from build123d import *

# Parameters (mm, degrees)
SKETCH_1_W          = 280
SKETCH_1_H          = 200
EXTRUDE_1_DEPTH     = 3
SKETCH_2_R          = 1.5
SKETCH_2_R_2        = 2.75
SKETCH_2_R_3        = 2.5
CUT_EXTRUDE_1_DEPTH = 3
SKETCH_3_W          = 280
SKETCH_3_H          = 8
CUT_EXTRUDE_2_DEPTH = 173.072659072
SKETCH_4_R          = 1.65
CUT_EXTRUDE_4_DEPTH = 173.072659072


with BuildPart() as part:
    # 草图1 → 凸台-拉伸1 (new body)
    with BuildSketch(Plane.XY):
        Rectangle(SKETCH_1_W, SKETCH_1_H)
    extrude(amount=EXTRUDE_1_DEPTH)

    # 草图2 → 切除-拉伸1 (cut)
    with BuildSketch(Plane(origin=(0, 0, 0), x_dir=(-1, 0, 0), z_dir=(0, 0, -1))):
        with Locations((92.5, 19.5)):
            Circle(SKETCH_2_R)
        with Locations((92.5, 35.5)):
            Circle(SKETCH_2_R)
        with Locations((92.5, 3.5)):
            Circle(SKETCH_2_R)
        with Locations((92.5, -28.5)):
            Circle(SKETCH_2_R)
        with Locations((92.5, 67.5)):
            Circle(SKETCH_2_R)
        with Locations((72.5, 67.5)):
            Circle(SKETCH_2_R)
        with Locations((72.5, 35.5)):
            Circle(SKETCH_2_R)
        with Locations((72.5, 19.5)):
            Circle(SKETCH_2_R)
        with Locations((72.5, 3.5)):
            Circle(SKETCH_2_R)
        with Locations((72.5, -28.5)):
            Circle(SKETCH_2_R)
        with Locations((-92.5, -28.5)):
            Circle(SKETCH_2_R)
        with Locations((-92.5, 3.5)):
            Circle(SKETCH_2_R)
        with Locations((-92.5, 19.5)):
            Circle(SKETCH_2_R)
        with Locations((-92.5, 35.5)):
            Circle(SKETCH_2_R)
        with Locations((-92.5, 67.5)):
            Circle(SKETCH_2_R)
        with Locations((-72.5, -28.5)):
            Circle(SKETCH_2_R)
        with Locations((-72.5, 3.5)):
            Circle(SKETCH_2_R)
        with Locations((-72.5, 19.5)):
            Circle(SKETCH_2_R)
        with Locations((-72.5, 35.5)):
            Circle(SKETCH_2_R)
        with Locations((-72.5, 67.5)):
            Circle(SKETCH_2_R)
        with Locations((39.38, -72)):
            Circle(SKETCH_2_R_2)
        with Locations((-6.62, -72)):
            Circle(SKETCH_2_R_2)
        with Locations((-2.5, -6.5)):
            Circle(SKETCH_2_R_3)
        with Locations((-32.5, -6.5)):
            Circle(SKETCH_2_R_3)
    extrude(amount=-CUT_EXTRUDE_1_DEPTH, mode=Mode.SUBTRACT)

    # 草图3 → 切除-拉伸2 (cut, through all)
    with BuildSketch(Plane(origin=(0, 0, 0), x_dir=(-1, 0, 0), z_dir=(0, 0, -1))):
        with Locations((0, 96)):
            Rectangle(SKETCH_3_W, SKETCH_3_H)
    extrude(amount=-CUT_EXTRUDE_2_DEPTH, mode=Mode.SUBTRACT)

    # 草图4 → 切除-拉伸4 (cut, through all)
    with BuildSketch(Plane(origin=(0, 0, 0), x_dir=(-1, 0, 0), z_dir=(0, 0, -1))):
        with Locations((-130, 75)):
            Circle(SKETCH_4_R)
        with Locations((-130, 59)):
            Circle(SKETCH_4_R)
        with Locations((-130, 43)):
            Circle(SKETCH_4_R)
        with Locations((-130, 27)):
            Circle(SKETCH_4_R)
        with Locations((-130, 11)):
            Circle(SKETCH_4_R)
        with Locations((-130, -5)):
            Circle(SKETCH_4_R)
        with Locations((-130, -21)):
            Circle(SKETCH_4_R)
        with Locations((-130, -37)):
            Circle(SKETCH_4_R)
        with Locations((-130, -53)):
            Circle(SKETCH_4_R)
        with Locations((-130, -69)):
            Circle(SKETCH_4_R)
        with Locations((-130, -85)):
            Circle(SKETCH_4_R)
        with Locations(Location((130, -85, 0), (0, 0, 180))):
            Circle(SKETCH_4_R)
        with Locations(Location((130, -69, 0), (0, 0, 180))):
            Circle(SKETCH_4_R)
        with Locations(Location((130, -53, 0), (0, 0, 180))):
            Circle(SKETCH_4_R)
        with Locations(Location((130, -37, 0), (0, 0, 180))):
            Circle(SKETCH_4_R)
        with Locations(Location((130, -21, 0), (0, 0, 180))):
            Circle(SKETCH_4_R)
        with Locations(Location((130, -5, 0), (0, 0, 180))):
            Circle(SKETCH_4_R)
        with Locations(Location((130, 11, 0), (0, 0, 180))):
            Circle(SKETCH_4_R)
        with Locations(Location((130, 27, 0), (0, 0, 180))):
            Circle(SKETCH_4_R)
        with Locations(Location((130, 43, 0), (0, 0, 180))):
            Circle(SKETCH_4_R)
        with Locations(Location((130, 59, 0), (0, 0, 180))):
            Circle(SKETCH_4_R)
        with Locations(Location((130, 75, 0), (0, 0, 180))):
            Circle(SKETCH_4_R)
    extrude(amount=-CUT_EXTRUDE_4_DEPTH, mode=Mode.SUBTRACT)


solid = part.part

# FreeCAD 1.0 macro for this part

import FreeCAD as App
import Part
import Sketcher
from FreeCAD import Vector


def add_polygon(sketch, points):
    """Adds a closed chain of lines whose ends are joined by coincident constraints."""
    first, n = sketch.GeometryCount, len(points)
    for a, b in zip(points, points[1:] + points[:1]):
        sketch.addGeometry(Part.LineSegment(App.Vector(*a, 0), App.Vector(*b, 0)), False)
    for i in range(n):
        sketch.addConstraint(Sketcher.Constraint("Coincident", first + i, 2, first + (i + 1) % n, 1))

doc = App.newDocument("Part")
body = doc.addObject("PartDesign::Body", "Body")

sketch1 = body.newObject("Sketcher::SketchObject", "Sketch")
sketch1.AttachmentSupport = (doc.getObject("XY_Plane"), [""])
sketch1.MapMode = "FlatFace"
add_polygon(sketch1, [(-140, 100), (-140, -100), (140, -100), (140, 100)])
sketch1.addConstraint([
    Sketcher.Constraint("Vertical", 0),
    Sketcher.Constraint("Horizontal", 1),
    Sketcher.Constraint("Vertical", 2),
    Sketcher.Constraint("Horizontal", 3),
    Sketcher.Constraint("Symmetric", 0, 2, 2, 2, -1, 1),
    Sketcher.Constraint("DistanceX", 1, 1, 1, 2, 280.0),
    Sketcher.Constraint("DistanceY", 0, 2, 0, 1, 200.0),
])
pad1 = body.newObject("PartDesign::Pad", "Pad")
pad1.Profile = sketch1
pad1.Length = 3

sketch2 = body.newObject("Sketcher::SketchObject", "Sketch001")
sketch2.AttachmentSupport = (doc.getObject("XY_Plane"), [""])
sketch2.MapMode = "FlatFace"
sketch2.addGeometry([
    Part.Circle(Vector(-92.5, 19.5, 0), Vector(0, 0, 1), 1.5),
    Part.Circle(Vector(-92.5, 35.5, 0), Vector(0, 0, 1), 1.5),
    Part.Circle(Vector(-92.5, 3.5, 0), Vector(0, 0, 1), 1.5),
    Part.Circle(Vector(-92.5, -28.5, 0), Vector(0, 0, 1), 1.5),
    Part.Circle(Vector(-92.5, 67.5, 0), Vector(0, 0, 1), 1.5),
    Part.Circle(Vector(-72.5, 67.5, 0), Vector(0, 0, 1), 1.5),
    Part.Circle(Vector(-72.5, 35.5, 0), Vector(0, 0, 1), 1.5),
    Part.Circle(Vector(-72.5, 19.5, 0), Vector(0, 0, 1), 1.5),
    Part.Circle(Vector(-72.5, 3.5, 0), Vector(0, 0, 1), 1.5),
    Part.Circle(Vector(-72.5, -28.5, 0), Vector(0, 0, 1), 1.5),
    Part.Circle(Vector(92.5, -28.5, 0), Vector(0, 0, 1), 1.5),
    Part.Circle(Vector(92.5, 3.5, 0), Vector(0, 0, 1), 1.5),
    Part.Circle(Vector(92.5, 19.5, 0), Vector(0, 0, 1), 1.5),
    Part.Circle(Vector(92.5, 35.5, 0), Vector(0, 0, 1), 1.5),
    Part.Circle(Vector(92.5, 67.5, 0), Vector(0, 0, 1), 1.5),
    Part.Circle(Vector(72.5, -28.5, 0), Vector(0, 0, 1), 1.5),
    Part.Circle(Vector(72.5, 3.5, 0), Vector(0, 0, 1), 1.5),
    Part.Circle(Vector(72.5, 19.5, 0), Vector(0, 0, 1), 1.5),
    Part.Circle(Vector(72.5, 35.5, 0), Vector(0, 0, 1), 1.5),
    Part.Circle(Vector(72.5, 67.5, 0), Vector(0, 0, 1), 1.5),
    Part.Circle(Vector(-39.4, -72, 0), Vector(0, 0, 1), 2.8),
    Part.Circle(Vector(6.6, -72, 0), Vector(0, 0, 1), 2.8),
    Part.Circle(Vector(2.5, -6.5, 0), Vector(0, 0, 1), 2.5),
    Part.Circle(Vector(32.5, -6.5, 0), Vector(0, 0, 1), 2.5),
], False)
sketch2.addConstraint([
    Sketcher.Constraint("Equal", 0, 1),
    Sketcher.Constraint("Equal", 1, 2),
    Sketcher.Constraint("Equal", 2, 3),
    Sketcher.Constraint("Equal", 3, 4),
    Sketcher.Constraint("Equal", 4, 5),
    Sketcher.Constraint("Equal", 5, 6),
    Sketcher.Constraint("Equal", 6, 7),
    Sketcher.Constraint("Equal", 7, 8),
    Sketcher.Constraint("Equal", 8, 9),
    Sketcher.Constraint("Equal", 9, 10),
    Sketcher.Constraint("Equal", 10, 11),
    Sketcher.Constraint("Equal", 11, 12),
    Sketcher.Constraint("Equal", 12, 13),
    Sketcher.Constraint("Equal", 13, 14),
    Sketcher.Constraint("Equal", 14, 15),
    Sketcher.Constraint("Equal", 15, 16),
    Sketcher.Constraint("Equal", 16, 17),
    Sketcher.Constraint("Equal", 17, 18),
    Sketcher.Constraint("Equal", 18, 19),
    Sketcher.Constraint("Equal", 20, 21),
    Sketcher.Constraint("Equal", 22, 23),
    Sketcher.Constraint("Symmetric", 3, 3, 10, 3, -2),
    Sketcher.Constraint("Symmetric", 2, 3, 11, 3, -2),
    Sketcher.Constraint("Symmetric", 0, 3, 12, 3, -2),
    Sketcher.Constraint("Symmetric", 1, 3, 13, 3, -2),
    Sketcher.Constraint("Symmetric", 4, 3, 14, 3, -2),
    Sketcher.Constraint("Symmetric", 9, 3, 15, 3, -2),
    Sketcher.Constraint("Symmetric", 8, 3, 16, 3, -2),
    Sketcher.Constraint("Symmetric", 7, 3, 17, 3, -2),
    Sketcher.Constraint("Symmetric", 6, 3, 18, 3, -2),
    Sketcher.Constraint("Symmetric", 5, 3, 19, 3, -2),
    Sketcher.Constraint("Horizontal", 4, 3, 5, 3),
    Sketcher.Constraint("Horizontal", 1, 3, 6, 3),
    Sketcher.Constraint("Horizontal", 0, 3, 7, 3),
    Sketcher.Constraint("Horizontal", 2, 3, 8, 3),
    Sketcher.Constraint("Horizontal", 3, 3, 9, 3),
    Sketcher.Constraint("Horizontal", 20, 3, 21, 3),
    Sketcher.Constraint("Horizontal", 22, 3, 23, 3),
    Sketcher.Constraint("Vertical", 0, 3, 1, 3),
    Sketcher.Constraint("Vertical", 1, 3, 2, 3),
    Sketcher.Constraint("Vertical", 2, 3, 3, 3),
    Sketcher.Constraint("Vertical", 3, 3, 4, 3),
    Sketcher.Constraint("Vertical", 5, 3, 6, 3),
    Sketcher.Constraint("Vertical", 6, 3, 7, 3),
    Sketcher.Constraint("Vertical", 7, 3, 8, 3),
    Sketcher.Constraint("Vertical", 8, 3, 9, 3),
    Sketcher.Constraint("Diameter", 0, 3.0),
    Sketcher.Constraint("Diameter", 22, 5.0),
    Sketcher.Constraint("Diameter", 20, 5.5),
    Sketcher.Constraint("DistanceY", 20, 3, -1, 1, 72.0),
    Sketcher.Constraint("DistanceY", 0, 3, 1, 3, 16.0),
    Sketcher.Constraint("DistanceY", 2, 3, 0, 3, 16.0),
    Sketcher.Constraint("DistanceY", 3, 3, 2, 3, 32.0),
    Sketcher.Constraint("DistanceY", 1, 3, 4, 3, 32.0),
    Sketcher.Constraint("DistanceX", 4, 3, 5, 3, 20.0),
    Sketcher.Constraint("DistanceX", 9, 3, 10, 3, 165.0),
    Sketcher.Constraint("DistanceX", 20, 3, 21, 3, 46.0),
    Sketcher.Constraint("DistanceX", 22, 3, 16, 3, 70.0),
    Sketcher.Constraint("DistanceY", 22, 3, 16, 3, 10.0),
    Sketcher.Constraint("DistanceX", 22, 3, 23, 3, 30.0),
    Sketcher.Constraint("DistanceY", -1, 1, 0, 3, 19.5),
    Sketcher.Constraint("DistanceX", 20, 3, -1, 1, 39.38),
])
pocket1 = body.newObject("PartDesign::Pocket", "Pocket")
pocket1.Profile = sketch2
pocket1.Length = 3
pocket1.Reversed = True

sketch3 = body.newObject("Sketcher::SketchObject", "Sketch002")
sketch3.AttachmentSupport = (doc.getObject("XY_Plane"), [""])
sketch3.MapMode = "FlatFace"
add_polygon(sketch3, [(140, 100), (140, 92), (-140, 92), (-140, 100)])
sketch3.addConstraint([
    Sketcher.Constraint("Vertical", 0),
    Sketcher.Constraint("Horizontal", 1),
    Sketcher.Constraint("Vertical", 2),
    Sketcher.Constraint("Horizontal", 3),
    Sketcher.Constraint("DistanceX", 1, 2, 1, 1, 280.0),
    Sketcher.Constraint("DistanceY", 0, 2, 0, 1, 8.0),
    Sketcher.Constraint("DistanceX", -1, 1, 0, 2, 140.0),
    Sketcher.Constraint("DistanceY", -1, 1, 0, 2, 92.0),
])
pocket2 = body.newObject("PartDesign::Pocket", "Pocket001")
pocket2.Profile = sketch3
pocket2.Type = "ThroughAll"
pocket2.Reversed = True

sketch4 = body.newObject("Sketcher::SketchObject", "Sketch003")
sketch4.AttachmentSupport = (doc.getObject("XY_Plane"), [""])
sketch4.MapMode = "FlatFace"
sketch4.addGeometry([
    Part.Circle(Vector(130, 75, 0), Vector(0, 0, 1), 1.6),
    Part.Circle(Vector(130, 59, 0), Vector(0, 0, 1), 1.6),
    Part.Circle(Vector(130, 43, 0), Vector(0, 0, 1), 1.6),
    Part.Circle(Vector(130, 27, 0), Vector(0, 0, 1), 1.6),
    Part.Circle(Vector(130, 11, 0), Vector(0, 0, 1), 1.6),
    Part.Circle(Vector(130, -5, 0), Vector(0, 0, 1), 1.6),
    Part.Circle(Vector(130, -21, 0), Vector(0, 0, 1), 1.6),
    Part.Circle(Vector(130, -37, 0), Vector(0, 0, 1), 1.6),
    Part.Circle(Vector(130, -53, 0), Vector(0, 0, 1), 1.6),
    Part.Circle(Vector(130, -69, 0), Vector(0, 0, 1), 1.6),
    Part.Circle(Vector(130, -85, 0), Vector(0, 0, 1), 1.6),
    Part.Circle(Vector(-130, -85, 0), Vector(0, 0, 1), 1.6),
    Part.Circle(Vector(-130, -69, 0), Vector(0, 0, 1), 1.6),
    Part.Circle(Vector(-130, -53, 0), Vector(0, 0, 1), 1.6),
    Part.Circle(Vector(-130, -37, 0), Vector(0, 0, 1), 1.6),
    Part.Circle(Vector(-130, -21, 0), Vector(0, 0, 1), 1.6),
    Part.Circle(Vector(-130, -5, 0), Vector(0, 0, 1), 1.6),
    Part.Circle(Vector(-130, 11, 0), Vector(0, 0, 1), 1.6),
    Part.Circle(Vector(-130, 27, 0), Vector(0, 0, 1), 1.6),
    Part.Circle(Vector(-130, 43, 0), Vector(0, 0, 1), 1.6),
    Part.Circle(Vector(-130, 59, 0), Vector(0, 0, 1), 1.6),
    Part.Circle(Vector(-130, 75, 0), Vector(0, 0, 1), 1.6),
], False)
sketch4.addConstraint([
    Sketcher.Constraint("Equal", 0, 1),
    Sketcher.Constraint("Equal", 1, 2),
    Sketcher.Constraint("Equal", 2, 3),
    Sketcher.Constraint("Equal", 3, 4),
    Sketcher.Constraint("Equal", 4, 5),
    Sketcher.Constraint("Equal", 5, 6),
    Sketcher.Constraint("Equal", 6, 7),
    Sketcher.Constraint("Equal", 7, 8),
    Sketcher.Constraint("Equal", 8, 9),
    Sketcher.Constraint("Equal", 9, 10),
    Sketcher.Constraint("Equal", 10, 11),
    Sketcher.Constraint("Equal", 11, 12),
    Sketcher.Constraint("Equal", 12, 13),
    Sketcher.Constraint("Equal", 13, 14),
    Sketcher.Constraint("Equal", 14, 15),
    Sketcher.Constraint("Equal", 15, 16),
    Sketcher.Constraint("Equal", 16, 17),
    Sketcher.Constraint("Equal", 17, 18),
    Sketcher.Constraint("Equal", 18, 19),
    Sketcher.Constraint("Equal", 19, 20),
    Sketcher.Constraint("Equal", 20, 21),
    Sketcher.Constraint("Symmetric", 10, 3, 11, 3, -2),
    Sketcher.Constraint("Symmetric", 9, 3, 12, 3, -2),
    Sketcher.Constraint("Symmetric", 8, 3, 13, 3, -2),
    Sketcher.Constraint("Symmetric", 7, 3, 14, 3, -2),
    Sketcher.Constraint("Symmetric", 6, 3, 15, 3, -2),
    Sketcher.Constraint("Symmetric", 5, 3, 16, 3, -2),
    Sketcher.Constraint("Symmetric", 4, 3, 17, 3, -2),
    Sketcher.Constraint("Symmetric", 3, 3, 18, 3, -2),
    Sketcher.Constraint("Symmetric", 2, 3, 19, 3, -2),
    Sketcher.Constraint("Symmetric", 1, 3, 20, 3, -2),
    Sketcher.Constraint("Symmetric", 0, 3, 21, 3, -2),
    Sketcher.Constraint("Vertical", 0, 3, 1, 3),
    Sketcher.Constraint("Vertical", 1, 3, 2, 3),
    Sketcher.Constraint("Vertical", 2, 3, 3, 3),
    Sketcher.Constraint("Vertical", 3, 3, 4, 3),
    Sketcher.Constraint("Vertical", 4, 3, 5, 3),
    Sketcher.Constraint("Vertical", 5, 3, 6, 3),
    Sketcher.Constraint("Vertical", 6, 3, 7, 3),
    Sketcher.Constraint("Vertical", 7, 3, 8, 3),
    Sketcher.Constraint("Vertical", 8, 3, 9, 3),
    Sketcher.Constraint("Vertical", 9, 3, 10, 3),
    Sketcher.Constraint("Diameter", 0, 3.3),
    Sketcher.Constraint("DistanceX", -1, 1, 0, 3, 130.0),
    Sketcher.Constraint("DistanceY", -1, 1, 0, 3, 75.0),
    Sketcher.Constraint("DistanceY", -1, 1, 1, 3, 59.0),
    Sketcher.Constraint("DistanceY", -1, 1, 2, 3, 43.0),
    Sketcher.Constraint("DistanceY", -1, 1, 3, 3, 27.0),
    Sketcher.Constraint("DistanceY", -1, 1, 4, 3, 11.0),
    Sketcher.Constraint("DistanceY", 5, 3, -1, 1, 5.0),
    Sketcher.Constraint("DistanceY", 6, 3, -1, 1, 21.0),
    Sketcher.Constraint("DistanceY", 7, 3, -1, 1, 37.0),
    Sketcher.Constraint("DistanceY", 8, 3, -1, 1, 53.0),
    Sketcher.Constraint("DistanceY", 9, 3, -1, 1, 69.0),
    Sketcher.Constraint("DistanceY", 10, 3, -1, 1, 85.0),
])
pocket3 = body.newObject("PartDesign::Pocket", "Pocket002")
pocket3.Profile = sketch4
pocket3.Type = "ThroughAll"
pocket3.Reversed = True

doc.recompute()
